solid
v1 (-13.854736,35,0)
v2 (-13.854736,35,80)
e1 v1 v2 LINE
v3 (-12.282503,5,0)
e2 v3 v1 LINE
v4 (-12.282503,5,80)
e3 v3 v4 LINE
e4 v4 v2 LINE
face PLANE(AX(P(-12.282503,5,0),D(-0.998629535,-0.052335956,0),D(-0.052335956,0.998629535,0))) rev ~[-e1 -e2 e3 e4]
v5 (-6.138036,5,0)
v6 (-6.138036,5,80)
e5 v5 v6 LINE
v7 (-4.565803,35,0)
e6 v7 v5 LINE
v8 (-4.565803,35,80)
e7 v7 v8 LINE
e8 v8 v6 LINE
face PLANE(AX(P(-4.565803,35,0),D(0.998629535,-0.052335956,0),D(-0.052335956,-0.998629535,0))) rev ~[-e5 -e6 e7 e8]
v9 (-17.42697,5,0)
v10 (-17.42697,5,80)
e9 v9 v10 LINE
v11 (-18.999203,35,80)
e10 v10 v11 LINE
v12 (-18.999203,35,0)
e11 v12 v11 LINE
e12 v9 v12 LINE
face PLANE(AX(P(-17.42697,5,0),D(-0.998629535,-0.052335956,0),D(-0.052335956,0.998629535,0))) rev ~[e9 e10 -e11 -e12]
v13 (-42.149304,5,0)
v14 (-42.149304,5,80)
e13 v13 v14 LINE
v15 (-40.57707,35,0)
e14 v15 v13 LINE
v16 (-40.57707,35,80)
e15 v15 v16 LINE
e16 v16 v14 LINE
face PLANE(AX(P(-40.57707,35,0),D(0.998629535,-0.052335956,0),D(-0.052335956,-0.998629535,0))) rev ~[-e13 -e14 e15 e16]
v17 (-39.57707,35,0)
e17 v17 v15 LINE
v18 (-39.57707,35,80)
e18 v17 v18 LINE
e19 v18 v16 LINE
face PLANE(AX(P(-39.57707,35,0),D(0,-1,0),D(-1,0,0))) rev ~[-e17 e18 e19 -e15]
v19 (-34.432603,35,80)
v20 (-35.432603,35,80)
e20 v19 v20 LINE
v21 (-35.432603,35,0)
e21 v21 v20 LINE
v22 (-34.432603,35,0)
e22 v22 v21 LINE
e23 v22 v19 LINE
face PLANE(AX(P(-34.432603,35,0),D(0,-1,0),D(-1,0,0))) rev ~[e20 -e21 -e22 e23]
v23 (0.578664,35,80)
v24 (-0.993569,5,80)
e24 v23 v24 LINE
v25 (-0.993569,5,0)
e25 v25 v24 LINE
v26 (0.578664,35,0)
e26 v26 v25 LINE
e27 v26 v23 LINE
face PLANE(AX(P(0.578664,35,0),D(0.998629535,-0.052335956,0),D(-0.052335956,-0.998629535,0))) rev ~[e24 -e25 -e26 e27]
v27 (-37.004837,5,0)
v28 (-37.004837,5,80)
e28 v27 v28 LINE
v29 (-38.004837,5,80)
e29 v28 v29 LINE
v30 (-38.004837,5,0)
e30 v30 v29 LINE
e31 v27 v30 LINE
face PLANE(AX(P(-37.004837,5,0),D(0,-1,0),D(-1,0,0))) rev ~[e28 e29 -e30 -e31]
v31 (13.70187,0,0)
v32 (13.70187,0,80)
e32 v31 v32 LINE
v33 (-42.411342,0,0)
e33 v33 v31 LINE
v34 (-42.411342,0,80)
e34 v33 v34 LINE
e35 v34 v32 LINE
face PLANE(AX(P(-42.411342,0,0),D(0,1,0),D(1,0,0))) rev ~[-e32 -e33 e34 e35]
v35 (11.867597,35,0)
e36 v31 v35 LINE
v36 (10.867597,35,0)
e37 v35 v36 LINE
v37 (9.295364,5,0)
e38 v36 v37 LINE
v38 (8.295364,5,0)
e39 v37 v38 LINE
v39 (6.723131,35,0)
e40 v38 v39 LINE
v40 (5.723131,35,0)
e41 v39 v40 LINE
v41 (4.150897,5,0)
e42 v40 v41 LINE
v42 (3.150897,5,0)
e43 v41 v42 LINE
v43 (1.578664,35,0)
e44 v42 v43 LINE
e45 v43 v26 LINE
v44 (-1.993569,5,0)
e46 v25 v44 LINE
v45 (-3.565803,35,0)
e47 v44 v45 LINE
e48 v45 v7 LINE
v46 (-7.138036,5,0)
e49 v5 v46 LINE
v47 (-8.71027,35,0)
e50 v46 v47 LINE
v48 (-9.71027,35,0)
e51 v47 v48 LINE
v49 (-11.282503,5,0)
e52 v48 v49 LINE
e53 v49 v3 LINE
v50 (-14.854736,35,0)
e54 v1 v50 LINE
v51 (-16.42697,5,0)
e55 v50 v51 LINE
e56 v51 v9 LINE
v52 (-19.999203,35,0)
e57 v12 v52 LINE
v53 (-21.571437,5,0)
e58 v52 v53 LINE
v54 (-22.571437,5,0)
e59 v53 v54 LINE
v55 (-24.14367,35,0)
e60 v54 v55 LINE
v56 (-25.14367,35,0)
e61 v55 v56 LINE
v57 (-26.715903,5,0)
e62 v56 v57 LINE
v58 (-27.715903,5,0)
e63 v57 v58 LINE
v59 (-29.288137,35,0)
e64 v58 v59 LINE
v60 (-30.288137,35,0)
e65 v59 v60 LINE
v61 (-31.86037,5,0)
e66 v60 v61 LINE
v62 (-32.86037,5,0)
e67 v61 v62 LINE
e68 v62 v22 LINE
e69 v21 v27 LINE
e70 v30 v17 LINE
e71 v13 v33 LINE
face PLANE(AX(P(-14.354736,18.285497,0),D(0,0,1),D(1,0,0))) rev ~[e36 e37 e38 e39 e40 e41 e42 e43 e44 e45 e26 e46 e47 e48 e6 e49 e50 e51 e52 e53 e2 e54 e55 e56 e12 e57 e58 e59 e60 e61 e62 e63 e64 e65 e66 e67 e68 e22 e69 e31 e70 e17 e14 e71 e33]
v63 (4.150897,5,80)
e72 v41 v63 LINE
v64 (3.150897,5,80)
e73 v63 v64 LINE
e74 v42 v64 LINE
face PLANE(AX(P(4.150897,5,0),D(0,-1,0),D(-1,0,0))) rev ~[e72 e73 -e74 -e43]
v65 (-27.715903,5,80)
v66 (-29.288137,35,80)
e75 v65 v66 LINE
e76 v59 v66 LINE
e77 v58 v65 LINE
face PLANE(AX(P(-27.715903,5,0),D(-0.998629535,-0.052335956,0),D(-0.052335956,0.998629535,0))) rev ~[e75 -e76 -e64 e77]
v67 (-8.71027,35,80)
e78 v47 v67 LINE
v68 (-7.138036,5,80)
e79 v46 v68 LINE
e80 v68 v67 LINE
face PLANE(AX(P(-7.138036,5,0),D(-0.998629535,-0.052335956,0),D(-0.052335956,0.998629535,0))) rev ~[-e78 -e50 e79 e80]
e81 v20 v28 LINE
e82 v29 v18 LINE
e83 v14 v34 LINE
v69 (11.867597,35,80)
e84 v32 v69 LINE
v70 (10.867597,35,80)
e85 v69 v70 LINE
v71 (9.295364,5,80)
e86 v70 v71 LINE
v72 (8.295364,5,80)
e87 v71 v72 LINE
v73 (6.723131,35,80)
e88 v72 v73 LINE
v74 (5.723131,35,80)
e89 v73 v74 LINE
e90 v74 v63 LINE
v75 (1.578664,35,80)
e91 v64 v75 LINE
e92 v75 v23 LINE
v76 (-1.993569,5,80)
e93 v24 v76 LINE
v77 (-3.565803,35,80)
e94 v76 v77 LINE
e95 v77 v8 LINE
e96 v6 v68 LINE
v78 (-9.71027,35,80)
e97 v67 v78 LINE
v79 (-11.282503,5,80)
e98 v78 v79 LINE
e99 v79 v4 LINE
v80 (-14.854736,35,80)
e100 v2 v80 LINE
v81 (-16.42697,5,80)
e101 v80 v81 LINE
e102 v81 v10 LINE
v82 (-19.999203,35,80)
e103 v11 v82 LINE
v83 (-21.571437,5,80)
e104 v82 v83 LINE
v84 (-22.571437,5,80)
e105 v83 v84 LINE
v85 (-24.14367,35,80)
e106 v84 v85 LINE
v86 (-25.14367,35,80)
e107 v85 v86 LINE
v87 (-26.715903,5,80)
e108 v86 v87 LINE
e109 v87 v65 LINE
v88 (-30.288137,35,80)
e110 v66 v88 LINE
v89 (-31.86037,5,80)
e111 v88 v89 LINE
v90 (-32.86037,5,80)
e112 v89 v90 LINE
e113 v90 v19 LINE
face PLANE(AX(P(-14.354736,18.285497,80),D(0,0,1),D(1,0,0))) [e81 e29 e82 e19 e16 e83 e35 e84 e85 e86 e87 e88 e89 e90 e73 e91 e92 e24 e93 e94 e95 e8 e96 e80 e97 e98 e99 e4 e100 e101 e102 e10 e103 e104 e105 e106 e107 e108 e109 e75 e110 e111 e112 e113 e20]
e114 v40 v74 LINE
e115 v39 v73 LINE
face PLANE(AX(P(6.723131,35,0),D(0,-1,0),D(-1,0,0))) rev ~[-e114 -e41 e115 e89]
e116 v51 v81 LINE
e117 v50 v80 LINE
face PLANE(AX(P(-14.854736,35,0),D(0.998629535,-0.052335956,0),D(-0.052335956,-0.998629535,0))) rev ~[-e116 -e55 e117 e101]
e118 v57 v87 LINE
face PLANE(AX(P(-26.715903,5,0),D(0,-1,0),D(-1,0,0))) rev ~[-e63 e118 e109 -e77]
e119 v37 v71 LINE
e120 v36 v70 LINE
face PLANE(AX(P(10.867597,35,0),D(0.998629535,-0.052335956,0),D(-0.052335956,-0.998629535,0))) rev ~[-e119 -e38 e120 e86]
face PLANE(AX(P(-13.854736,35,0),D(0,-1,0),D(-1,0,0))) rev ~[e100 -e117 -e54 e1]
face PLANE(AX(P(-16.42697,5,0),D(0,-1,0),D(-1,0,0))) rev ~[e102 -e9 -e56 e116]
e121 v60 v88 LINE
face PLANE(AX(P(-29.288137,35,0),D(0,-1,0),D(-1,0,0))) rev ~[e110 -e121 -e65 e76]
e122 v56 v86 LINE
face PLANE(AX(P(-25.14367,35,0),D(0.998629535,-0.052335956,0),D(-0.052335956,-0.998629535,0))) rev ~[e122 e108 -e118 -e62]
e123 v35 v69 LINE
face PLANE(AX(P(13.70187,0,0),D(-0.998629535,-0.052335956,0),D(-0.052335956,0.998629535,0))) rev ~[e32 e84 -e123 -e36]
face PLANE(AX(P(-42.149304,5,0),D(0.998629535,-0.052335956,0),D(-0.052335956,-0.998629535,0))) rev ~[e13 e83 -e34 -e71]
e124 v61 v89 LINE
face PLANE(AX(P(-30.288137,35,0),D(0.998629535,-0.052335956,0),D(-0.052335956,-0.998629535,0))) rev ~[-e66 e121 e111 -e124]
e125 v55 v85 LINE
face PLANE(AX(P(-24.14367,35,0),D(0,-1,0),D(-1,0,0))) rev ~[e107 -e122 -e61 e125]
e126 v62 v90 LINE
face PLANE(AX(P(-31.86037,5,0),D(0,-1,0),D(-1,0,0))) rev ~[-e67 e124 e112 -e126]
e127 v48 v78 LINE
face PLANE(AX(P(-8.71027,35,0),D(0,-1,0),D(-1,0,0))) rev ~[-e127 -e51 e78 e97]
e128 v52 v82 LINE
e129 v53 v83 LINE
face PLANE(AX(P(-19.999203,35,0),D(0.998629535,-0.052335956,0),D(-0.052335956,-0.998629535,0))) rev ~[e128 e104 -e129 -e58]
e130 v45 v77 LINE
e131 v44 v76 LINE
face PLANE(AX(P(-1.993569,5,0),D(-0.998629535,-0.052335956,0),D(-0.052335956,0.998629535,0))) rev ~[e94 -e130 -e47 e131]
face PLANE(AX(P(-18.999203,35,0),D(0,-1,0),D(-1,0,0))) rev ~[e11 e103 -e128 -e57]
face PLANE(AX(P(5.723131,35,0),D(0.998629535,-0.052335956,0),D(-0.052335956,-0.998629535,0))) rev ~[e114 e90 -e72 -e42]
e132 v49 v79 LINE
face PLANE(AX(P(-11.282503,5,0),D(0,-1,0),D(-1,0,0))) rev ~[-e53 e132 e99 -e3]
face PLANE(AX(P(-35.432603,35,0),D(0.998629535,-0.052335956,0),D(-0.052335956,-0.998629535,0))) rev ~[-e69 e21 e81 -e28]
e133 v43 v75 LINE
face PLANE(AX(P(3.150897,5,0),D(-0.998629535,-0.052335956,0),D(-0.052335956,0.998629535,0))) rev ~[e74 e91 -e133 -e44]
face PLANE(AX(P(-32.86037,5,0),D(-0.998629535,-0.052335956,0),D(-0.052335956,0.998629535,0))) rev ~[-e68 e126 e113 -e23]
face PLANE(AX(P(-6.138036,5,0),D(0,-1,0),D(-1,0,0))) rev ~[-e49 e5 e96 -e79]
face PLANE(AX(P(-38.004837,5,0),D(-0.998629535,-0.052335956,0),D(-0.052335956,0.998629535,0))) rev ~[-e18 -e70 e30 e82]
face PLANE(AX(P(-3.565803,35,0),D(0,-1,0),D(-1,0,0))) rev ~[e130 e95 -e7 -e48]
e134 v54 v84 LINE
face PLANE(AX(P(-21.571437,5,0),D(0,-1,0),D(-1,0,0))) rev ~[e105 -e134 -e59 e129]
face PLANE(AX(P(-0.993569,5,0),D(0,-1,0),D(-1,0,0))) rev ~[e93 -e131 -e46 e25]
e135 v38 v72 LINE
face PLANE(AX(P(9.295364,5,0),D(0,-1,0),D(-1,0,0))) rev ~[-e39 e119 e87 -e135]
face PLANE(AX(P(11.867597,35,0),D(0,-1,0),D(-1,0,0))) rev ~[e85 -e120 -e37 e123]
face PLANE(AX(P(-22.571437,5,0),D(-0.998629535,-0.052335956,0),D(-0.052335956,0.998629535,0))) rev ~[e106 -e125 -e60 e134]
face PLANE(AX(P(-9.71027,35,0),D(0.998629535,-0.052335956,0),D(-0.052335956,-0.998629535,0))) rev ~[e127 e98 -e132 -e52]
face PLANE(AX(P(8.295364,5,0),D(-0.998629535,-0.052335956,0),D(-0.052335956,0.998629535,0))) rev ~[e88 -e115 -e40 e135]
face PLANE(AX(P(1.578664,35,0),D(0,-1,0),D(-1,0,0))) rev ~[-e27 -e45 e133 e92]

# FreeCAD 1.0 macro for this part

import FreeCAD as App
import Part
import Sketcher

V = App.Vector
Q = App.Units.Quantity

doc = App.newDocument("Part")
body = doc.addObject("PartDesign::Body", "Body")

# Sketch on XY plane
sketch1 = body.newObject("Sketcher::SketchObject", "Sketch")
sketch1.AttachmentSupport = (doc.getObject("XY_Plane"), [""])
sketch1.MapMode = "FlatFace"
sketch1.addGeometry([
    Part.LineSegment(V(13.7, 0, 0), V(11.9, 35, 0)),  # 0
    Part.LineSegment(V(11.9, 35, 0), V(10.9, 35, 0)),  # 1
    Part.LineSegment(V(10.9, 35, 0), V(9.3, 5, 0)),  # 2
    Part.LineSegment(V(9.3, 5, 0), V(8.3, 5, 0)),  # 3
    Part.LineSegment(V(8.3, 5, 0), V(6.7, 35, 0)),  # 4
    Part.LineSegment(V(6.7, 35, 0), V(5.7, 35, 0)),  # 5
    Part.LineSegment(V(5.7, 35, 0), V(4.2, 5, 0)),  # 6
    Part.LineSegment(V(4.2, 5, 0), V(3.2, 5, 0)),  # 7
    Part.LineSegment(V(3.2, 5, 0), V(1.6, 35, 0)),  # 8
    Part.LineSegment(V(1.6, 35, 0), V(0.6, 35, 0)),  # 9
    Part.LineSegment(V(0.6, 35, 0), V(-1, 5, 0)),  # 10
    Part.LineSegment(V(-1, 5, 0), V(-2, 5, 0)),  # 11
    Part.LineSegment(V(-2, 5, 0), V(-3.6, 35, 0)),  # 12
    Part.LineSegment(V(-3.6, 35, 0), V(-4.6, 35, 0)),  # 13
    Part.LineSegment(V(-4.6, 35, 0), V(-6.1, 5, 0)),  # 14
    Part.LineSegment(V(-6.1, 5, 0), V(-7.1, 5, 0)),  # 15
    Part.LineSegment(V(-7.1, 5, 0), V(-8.7, 35, 0)),  # 16
    Part.LineSegment(V(-8.7, 35, 0), V(-9.7, 35, 0)),  # 17
    Part.LineSegment(V(-9.7, 35, 0), V(-11.3, 5, 0)),  # 18
    Part.LineSegment(V(-11.3, 5, 0), V(-12.3, 5, 0)),  # 19
    Part.LineSegment(V(-12.3, 5, 0), V(-13.9, 35, 0)),  # 20
    Part.LineSegment(V(-13.9, 35, 0), V(-14.9, 35, 0)),  # 21
    Part.LineSegment(V(-14.9, 35, 0), V(-16.4, 5, 0)),  # 22
    Part.LineSegment(V(-16.4, 5, 0), V(-17.4, 5, 0)),  # 23
    Part.LineSegment(V(-17.4, 5, 0), V(-19, 35, 0)),  # 24
    Part.LineSegment(V(-19, 35, 0), V(-20, 35, 0)),  # 25
    Part.LineSegment(V(-20, 35, 0), V(-21.6, 5, 0)),  # 26
    Part.LineSegment(V(-21.6, 5, 0), V(-22.6, 5, 0)),  # 27
    Part.LineSegment(V(-22.6, 5, 0), V(-24.1, 35, 0)),  # 28
    Part.LineSegment(V(-24.1, 35, 0), V(-25.1, 35, 0)),  # 29
    Part.LineSegment(V(-25.1, 35, 0), V(-26.7, 5, 0)),  # 30
    Part.LineSegment(V(-26.7, 5, 0), V(-27.7, 5, 0)),  # 31
    Part.LineSegment(V(-27.7, 5, 0), V(-29.3, 35, 0)),  # 32
    Part.LineSegment(V(-29.3, 35, 0), V(-30.3, 35, 0)),  # 33
    Part.LineSegment(V(-30.3, 35, 0), V(-31.9, 5, 0)),  # 34
    Part.LineSegment(V(-31.9, 5, 0), V(-32.9, 5, 0)),  # 35
    Part.LineSegment(V(-32.9, 5, 0), V(-34.4, 35, 0)),  # 36
    Part.LineSegment(V(-34.4, 35, 0), V(-35.4, 35, 0)),  # 37
    Part.LineSegment(V(-35.4, 35, 0), V(-37, 5, 0)),  # 38
    Part.LineSegment(V(-37, 5, 0), V(-38, 5, 0)),  # 39
    Part.LineSegment(V(-38, 5, 0), V(-39.6, 35, 0)),  # 40
    Part.LineSegment(V(-39.6, 35, 0), V(-40.6, 35, 0)),  # 41
    Part.LineSegment(V(-40.6, 35, 0), V(-42.1, 5, 0)),  # 42
    Part.LineSegment(V(-42.1, 5, 0), V(-42.4, 0, 0)),  # 43
    Part.LineSegment(V(-42.4, 0, 0), V(13.7, 0, 0)),  # 44
], False)
sketch1.addConstraint([
    Sketcher.Constraint("Coincident", 0, 2, 1, 1),
    Sketcher.Constraint("Coincident", 1, 2, 2, 1),
    Sketcher.Constraint("Coincident", 2, 2, 3, 1),
    Sketcher.Constraint("Coincident", 3, 2, 4, 1),
    Sketcher.Constraint("Coincident", 4, 2, 5, 1),
    Sketcher.Constraint("Coincident", 5, 2, 6, 1),
    Sketcher.Constraint("Coincident", 6, 2, 7, 1),
    Sketcher.Constraint("Coincident", 7, 2, 8, 1),
    Sketcher.Constraint("Coincident", 8, 2, 9, 1),
    Sketcher.Constraint("Coincident", 9, 2, 10, 1),
    Sketcher.Constraint("Coincident", 10, 2, 11, 1),
    Sketcher.Constraint("Coincident", 11, 2, 12, 1),
    Sketcher.Constraint("Coincident", 12, 2, 13, 1),
    Sketcher.Constraint("Coincident", 13, 2, 14, 1),
    Sketcher.Constraint("Coincident", 14, 2, 15, 1),
    Sketcher.Constraint("Coincident", 15, 2, 16, 1),
    Sketcher.Constraint("Coincident", 16, 2, 17, 1),
    Sketcher.Constraint("Coincident", 17, 2, 18, 1),
    Sketcher.Constraint("Coincident", 18, 2, 19, 1),
    Sketcher.Constraint("Coincident", 19, 2, 20, 1),
    Sketcher.Constraint("Coincident", 20, 2, 21, 1),
    Sketcher.Constraint("Coincident", 21, 2, 22, 1),
    Sketcher.Constraint("Coincident", 22, 2, 23, 1),
    Sketcher.Constraint("Coincident", 23, 2, 24, 1),
    Sketcher.Constraint("Coincident", 24, 2, 25, 1),
    Sketcher.Constraint("Coincident", 25, 2, 26, 1),
    Sketcher.Constraint("Coincident", 26, 2, 27, 1),
    Sketcher.Constraint("Coincident", 27, 2, 28, 1),
    Sketcher.Constraint("Coincident", 28, 2, 29, 1),
    Sketcher.Constraint("Coincident", 29, 2, 30, 1),
    Sketcher.Constraint("Coincident", 30, 2, 31, 1),
    Sketcher.Constraint("Coincident", 31, 2, 32, 1),
    Sketcher.Constraint("Coincident", 32, 2, 33, 1),
    Sketcher.Constraint("Coincident", 33, 2, 34, 1),
    Sketcher.Constraint("Coincident", 34, 2, 35, 1),
    Sketcher.Constraint("Coincident", 35, 2, 36, 1),
    Sketcher.Constraint("Coincident", 36, 2, 37, 1),
    Sketcher.Constraint("Coincident", 37, 2, 38, 1),
    Sketcher.Constraint("Coincident", 38, 2, 39, 1),
    Sketcher.Constraint("Coincident", 39, 2, 40, 1),
    Sketcher.Constraint("Coincident", 40, 2, 41, 1),
    Sketcher.Constraint("Coincident", 41, 2, 42, 1),
    Sketcher.Constraint("Coincident", 42, 2, 43, 1),
    Sketcher.Constraint("Coincident", 43, 2, 44, 1),
    Sketcher.Constraint("Coincident", 44, 2, 0, 1),
    Sketcher.Constraint("Horizontal", 1),
    Sketcher.Constraint("Horizontal", 3),
    Sketcher.Constraint("Horizontal", 5),
    Sketcher.Constraint("Horizontal", 7),
    Sketcher.Constraint("Horizontal", 9),
    Sketcher.Constraint("Horizontal", 11),
    Sketcher.Constraint("Horizontal", 13),
    Sketcher.Constraint("Horizontal", 15),
    Sketcher.Constraint("Horizontal", 17),
    Sketcher.Constraint("Horizontal", 19),
    Sketcher.Constraint("Horizontal", 21),
    Sketcher.Constraint("Horizontal", 23),
    Sketcher.Constraint("Horizontal", 25),
    Sketcher.Constraint("Horizontal", 27),
    Sketcher.Constraint("Horizontal", 29),
    Sketcher.Constraint("Horizontal", 31),
    Sketcher.Constraint("Horizontal", 33),
    Sketcher.Constraint("Horizontal", 35),
    Sketcher.Constraint("Horizontal", 37),
    Sketcher.Constraint("Horizontal", 39),
    Sketcher.Constraint("Horizontal", 41),
    Sketcher.Constraint("Horizontal", 44),
    Sketcher.Constraint("PointOnObject", 43, 2, -1),
    Sketcher.Constraint("Parallel", 0, 4),
    Sketcher.Constraint("Parallel", 2, 6),
    Sketcher.Constraint("Parallel", 4, 8),
    Sketcher.Constraint("Parallel", 6, 10),
    Sketcher.Constraint("Parallel", 8, 12),
    Sketcher.Constraint("Parallel", 10, 14),
    Sketcher.Constraint("Parallel", 12, 16),
    Sketcher.Constraint("Parallel", 14, 18),
    Sketcher.Constraint("Parallel", 16, 20),
    Sketcher.Constraint("Parallel", 18, 22),
    Sketcher.Constraint("Parallel", 20, 24),
    Sketcher.Constraint("Parallel", 22, 26),
    Sketcher.Constraint("Parallel", 24, 28),
    Sketcher.Constraint("Parallel", 26, 30),
    Sketcher.Constraint("Parallel", 28, 32),
    Sketcher.Constraint("Parallel", 30, 34),
    Sketcher.Constraint("Parallel", 32, 36),
    Sketcher.Constraint("Parallel", 34, 38),
    Sketcher.Constraint("Parallel", 36, 40),
    Sketcher.Constraint("Parallel", 38, 42),
    Sketcher.Constraint("Parallel", 42, 43),
    Sketcher.Constraint("Horizontal", 1, 2, 4, 2),
    Sketcher.Constraint("Horizontal", 3, 2, 6, 2),
    Sketcher.Constraint("Horizontal", 5, 2, 8, 2),
    Sketcher.Constraint("Horizontal", 7, 2, 10, 2),
    Sketcher.Constraint("Horizontal", 9, 2, 12, 2),
    Sketcher.Constraint("Horizontal", 11, 2, 14, 2),
    Sketcher.Constraint("Horizontal", 13, 2, 16, 2),
    Sketcher.Constraint("Horizontal", 15, 2, 18, 2),
    Sketcher.Constraint("Horizontal", 17, 2, 20, 2),
    Sketcher.Constraint("Horizontal", 19, 2, 22, 2),
    Sketcher.Constraint("Horizontal", 21, 2, 24, 2),
    Sketcher.Constraint("Horizontal", 23, 2, 26, 2),
    Sketcher.Constraint("Horizontal", 25, 2, 28, 2),
    Sketcher.Constraint("Horizontal", 27, 2, 30, 2),
    Sketcher.Constraint("Horizontal", 29, 2, 32, 2),
    Sketcher.Constraint("Horizontal", 31, 2, 34, 2),
    Sketcher.Constraint("Horizontal", 33, 2, 36, 2),
    Sketcher.Constraint("Horizontal", 35, 2, 38, 2),
    Sketcher.Constraint("Horizontal", 37, 2, 40, 2),
    Sketcher.Constraint("Horizontal", 39, 2, 42, 2),
    Sketcher.Constraint("Equal", 1, 3),
    Sketcher.Constraint("Equal", 3, 5),
    Sketcher.Constraint("Equal", 5, 7),
    Sketcher.Constraint("Equal", 7, 9),
    Sketcher.Constraint("Equal", 9, 11),
    Sketcher.Constraint("Equal", 11, 13),
    Sketcher.Constraint("Equal", 13, 15),
    Sketcher.Constraint("Equal", 15, 17),
    Sketcher.Constraint("Equal", 17, 19),
    Sketcher.Constraint("Equal", 19, 21),
    Sketcher.Constraint("Equal", 21, 23),
    Sketcher.Constraint("Equal", 23, 25),
    Sketcher.Constraint("Equal", 25, 27),
    Sketcher.Constraint("Equal", 27, 29),
    Sketcher.Constraint("Equal", 29, 31),
    Sketcher.Constraint("Equal", 31, 33),
    Sketcher.Constraint("Equal", 33, 35),
    Sketcher.Constraint("Equal", 35, 37),
    Sketcher.Constraint("Equal", 37, 39),
    Sketcher.Constraint("Equal", 39, 41),
    Sketcher.Constraint("Equal", 2, 4),
    Sketcher.Constraint("DistanceX", 1, 2, 1, 1, Q("1 mm")),
    Sketcher.Constraint("Angle", 0, Q("93 deg")),
    Sketcher.Constraint("DistanceY", -1, 1, 0, 2, Q("35 mm")),
    Sketcher.Constraint("DistanceY", -1, 1, 2, 2, Q("5 mm")),
    Sketcher.Constraint("DistanceX", -1, 1, 4, 2, Q("6.723131 mm")),
])
pad1 = body.newObject("PartDesign::Pad", "Pad")
pad1.Profile = sketch1
pad1.Length = 80

doc.recompute()
